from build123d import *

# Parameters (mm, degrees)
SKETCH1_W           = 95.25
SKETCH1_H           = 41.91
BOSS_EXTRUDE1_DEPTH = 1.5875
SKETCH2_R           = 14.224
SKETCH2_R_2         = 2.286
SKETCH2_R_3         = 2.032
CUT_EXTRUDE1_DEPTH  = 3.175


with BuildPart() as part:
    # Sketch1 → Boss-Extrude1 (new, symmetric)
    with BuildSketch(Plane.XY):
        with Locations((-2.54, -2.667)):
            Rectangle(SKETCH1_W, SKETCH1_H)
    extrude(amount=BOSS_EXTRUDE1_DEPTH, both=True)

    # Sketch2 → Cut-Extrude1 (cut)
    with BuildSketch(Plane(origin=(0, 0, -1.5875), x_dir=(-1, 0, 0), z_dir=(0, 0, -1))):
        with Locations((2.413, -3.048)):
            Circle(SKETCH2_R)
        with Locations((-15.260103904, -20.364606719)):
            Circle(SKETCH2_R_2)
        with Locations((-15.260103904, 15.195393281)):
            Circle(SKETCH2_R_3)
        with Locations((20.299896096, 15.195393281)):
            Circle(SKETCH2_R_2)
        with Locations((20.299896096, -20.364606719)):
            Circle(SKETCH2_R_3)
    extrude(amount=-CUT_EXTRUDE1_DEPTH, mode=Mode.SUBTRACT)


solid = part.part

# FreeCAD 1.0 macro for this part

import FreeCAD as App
import Part
import Sketcher
from FreeCAD import Vector
Q = App.Units.Quantity


def add_polygon(sketch, points):
    """Adds a closed chain of lines whose ends are joined by coincident constraints."""
    first, n = sketch.GeometryCount, len(points)
    for a, b in zip(points, points[1:] + points[:1]):
        sketch.addGeometry(Part.LineSegment(App.Vector(*a, 0), App.Vector(*b, 0)), False)
    for i in range(n):
        sketch.addConstraint(Sketcher.Constraint("Coincident", first + i, 2, first + (i + 1) % n, 1))

doc = App.newDocument("Part")
body = doc.addObject("PartDesign::Body", "Body")

# Sketch on XY plane
sketch1 = body.newObject("Sketcher::SketchObject", "Sketch")
sketch1.AttachmentSupport = (doc.getObject("XY_Plane"), [""])
sketch1.MapMode = "FlatFace"
add_polygon(sketch1, [(-50.165, 18.288), (-50.165, -23.622), (45.085, -23.622), (45.085, 18.288)])  # lines 0-3
sketch1.addConstraint([
    Sketcher.Constraint("Vertical", 0),
    Sketcher.Constraint("Horizontal", 1),
    Sketcher.Constraint("Vertical", 2),
    Sketcher.Constraint("Horizontal", 3),
    Sketcher.Constraint("DistanceX", 1, 1, 1, 2, Q("3.75 in")),
    Sketcher.Constraint("DistanceY", 0, 2, 0, 1, Q("1.65 in")),
    Sketcher.Constraint("DistanceY", 0, 2, -1, 1, Q("0.93 in")),
    Sketcher.Constraint("DistanceX", 0, 2, -1, 1, Q("1.975 in")),
])
pad1 = body.newObject("PartDesign::Pad", "Pad")
pad1.Profile = sketch1
pad1.Length = Q("0.125 in")
pad1.Midplane = True

# Sketch on XY plane
sketch2 = body.newObject("Sketcher::SketchObject", "Sketch001")
sketch2.AttachmentSupport = (doc.getObject("XY_Plane"), [""])
sketch2.MapMode = "FlatFace"
sketch2.AttachmentOffset = App.Placement(Vector(0, 0, -0.0625 * 25.4), App.Rotation())
sketch2.addGeometry([
    Part.Circle(Vector(-2.413, -3.048, 0), Vector(0, 0, 1), 14.224),  # 0
    Part.Circle(Vector(15.260104, -20.364607, 0), Vector(0, 0, 1), 2.286),  # 1
    Part.Circle(Vector(15.260104, 15.195393, 0), Vector(0, 0, 1), 2.032),  # 2
    Part.Circle(Vector(-20.299896, 15.195393, 0), Vector(0, 0, 1), 2.286),  # 3
    Part.Circle(Vector(-20.299896, -20.364607, 0), Vector(0, 0, 1), 2.032),  # 4
], False)
sketch2.addConstraint([
    Sketcher.Constraint("Equal", 1, 3),
    Sketcher.Constraint("Equal", 2, 4),
    Sketcher.Constraint("Horizontal", 2, 3, 3, 3),
    Sketcher.Constraint("Horizontal", 1, 3, 4, 3),
    Sketcher.Constraint("Vertical", 1, 3, 2, 3),
    Sketcher.Constraint("Vertical", 3, 3, 4, 3),
    Sketcher.Constraint("Diameter", 0, Q("1.12 in")),
    Sketcher.Constraint("Diameter", 1, Q("0.18 in")),
    Sketcher.Constraint("Diameter", 2, Q("0.16 in")),
    Sketcher.Constraint("DistanceY", 1, 3, 2, 3, Q("1.4 in")),
    Sketcher.Constraint("DistanceX", 3, 3, 2, 3, Q("1.4 in")),
    Sketcher.Constraint("DistanceY", 0, 3, -1, 1, Q("0.12 in")),
    Sketcher.Constraint("DistanceX", 0, 3, -1, 1, Q("0.095 in")),
    Sketcher.Constraint("DistanceX", -1, 1, 1, 3, 15.260104),
    Sketcher.Constraint("DistanceY", 1, 3, -1, 1, 20.364607),
])
pocket1 = body.newObject("PartDesign::Pocket", "Pocket")
pocket1.Profile = sketch2
pocket1.Length = Q("0.125 in")
pocket1.Reversed = True

doc.recompute()
